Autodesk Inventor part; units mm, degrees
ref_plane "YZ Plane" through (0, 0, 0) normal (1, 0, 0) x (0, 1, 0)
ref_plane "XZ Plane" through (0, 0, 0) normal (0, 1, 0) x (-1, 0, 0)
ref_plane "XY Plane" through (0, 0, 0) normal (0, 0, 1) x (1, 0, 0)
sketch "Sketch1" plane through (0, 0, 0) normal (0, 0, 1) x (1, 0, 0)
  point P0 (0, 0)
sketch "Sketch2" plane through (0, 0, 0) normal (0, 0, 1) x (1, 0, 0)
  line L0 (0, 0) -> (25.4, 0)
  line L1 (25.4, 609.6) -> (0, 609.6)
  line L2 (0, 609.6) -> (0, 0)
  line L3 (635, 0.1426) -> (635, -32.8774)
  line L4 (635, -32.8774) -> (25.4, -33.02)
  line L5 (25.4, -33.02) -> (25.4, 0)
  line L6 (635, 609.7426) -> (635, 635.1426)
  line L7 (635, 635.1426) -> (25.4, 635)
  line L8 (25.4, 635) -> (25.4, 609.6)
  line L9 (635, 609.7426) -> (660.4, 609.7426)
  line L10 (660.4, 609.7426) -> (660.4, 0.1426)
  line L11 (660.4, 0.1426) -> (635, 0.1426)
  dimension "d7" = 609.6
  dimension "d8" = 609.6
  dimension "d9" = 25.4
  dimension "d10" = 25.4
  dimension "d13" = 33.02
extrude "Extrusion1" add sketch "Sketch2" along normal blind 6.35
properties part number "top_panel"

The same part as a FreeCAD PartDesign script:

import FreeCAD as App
import Part
import Sketcher

V = App.Vector
Q = App.Units.Quantity

doc = App.newDocument("Part")
params = doc.addObject("Spreadsheet::Sheet", "Params")
for row, (alias, value) in enumerate([
    ("sketch1_width", "1 in"),
    ("sketch1_height", "24 in"),
    ("sketch1_length", "24 in"),
    ("sketch1_height2", "1.3 in"),
    ("pad1_length", "0.25 in"),
], start=1):
    params.set(f"A{row}", alias)
    params.set(f"B{row}", "=" + value)
    params.setAlias(f"B{row}", alias)

body = doc.addObject("PartDesign::Body", "Body")

sketch1 = doc.addObject("Sketcher::SketchObject", "Sketch")
body.addObject(sketch1)
sketch1.AttachmentSupport = (doc.XY_Plane, [""])
sketch1.MapMode = "FlatFace"
sketch1.addGeometry(Part.LineSegment(V(0, 610, 0), V(0, 0, 0)), False)
sketch1.addGeometry(Part.LineSegment(V(0, 0, 0), V(25, 0, 0)), False)
sketch1.addGeometry(Part.LineSegment(V(25, 0, 0), V(25, -33, 0)), False)
sketch1.addGeometry(Part.LineSegment(V(25, -33, 0), V(635, -33, 0)), False)
sketch1.addGeometry(Part.LineSegment(V(635, -33, 0), V(635, 0, 0)), False)
sketch1.addGeometry(Part.LineSegment(V(635, 0, 0), V(660, 0, 0)), False)
sketch1.addGeometry(Part.LineSegment(V(660, 0, 0), V(660, 610, 0)), False)
sketch1.addGeometry(Part.LineSegment(V(660, 610, 0), V(635, 610, 0)), False)
sketch1.addGeometry(Part.LineSegment(V(635, 610, 0), V(635, 635, 0)), False)
sketch1.addGeometry(Part.LineSegment(V(635, 635, 0), V(25, 635, 0)), False)
sketch1.addGeometry(Part.LineSegment(V(25, 635, 0), V(25, 610, 0)), False)
sketch1.addGeometry(Part.LineSegment(V(25, 610, 0), V(0, 610, 0)), False)
sketch1.addConstraint(Sketcher.Constraint("Coincident", 0, 2, 1, 1))
sketch1.addConstraint(Sketcher.Constraint("Coincident", 1, 2, 2, 1))
sketch1.addConstraint(Sketcher.Constraint("Coincident", 2, 2, 3, 1))
sketch1.addConstraint(Sketcher.Constraint("Coincident", 3, 2, 4, 1))
sketch1.addConstraint(Sketcher.Constraint("Coincident", 4, 2, 5, 1))
sketch1.addConstraint(Sketcher.Constraint("Coincident", 5, 2, 6, 1))
sketch1.addConstraint(Sketcher.Constraint("Coincident", 6, 2, 7, 1))
sketch1.addConstraint(Sketcher.Constraint("Coincident", 7, 2, 8, 1))
sketch1.addConstraint(Sketcher.Constraint("Coincident", 8, 2, 9, 1))
sketch1.addConstraint(Sketcher.Constraint("Coincident", 9, 2, 10, 1))
sketch1.addConstraint(Sketcher.Constraint("Coincident", 10, 2, 11, 1))
sketch1.addConstraint(Sketcher.Constraint("Coincident", 11, 2, 0, 1))
sketch1.addConstraint(Sketcher.Constraint("Vertical", 0))
sketch1.addConstraint(Sketcher.Constraint("Horizontal", 1))
sketch1.addConstraint(Sketcher.Constraint("Vertical", 2))
sketch1.addConstraint(Sketcher.Constraint("Vertical", 4))
sketch1.addConstraint(Sketcher.Constraint("Horizontal", 5))
sketch1.addConstraint(Sketcher.Constraint("Vertical", 6))
sketch1.addConstraint(Sketcher.Constraint("Horizontal", 7))
sketch1.addConstraint(Sketcher.Constraint("Vertical", 8))
sketch1.addConstraint(Sketcher.Constraint("Vertical", 10))
sketch1.addConstraint(Sketcher.Constraint("Horizontal", 11))
sketch1.addConstraint(Sketcher.Constraint("Coincident", 0, 2, -1, 1))
sketch1.addConstraint(Sketcher.Constraint("Parallel", 3, 9))
sketch1.addConstraint(Sketcher.Constraint("Vertical", 4, 2, 7, 2))
sketch1.addConstraint(Sketcher.Constraint("Vertical", 2, 2, 9, 2))
sketch1.addConstraint(Sketcher.Constraint("Equal", 1, 5))
sketch1.addConstraint(Sketcher.Constraint("Equal", 2, 4))
sketch1.addConstraint(Sketcher.Constraint("Equal", 0, 6))
sketch1.addConstraint(Sketcher.Constraint("Equal", 11, 8))
sketch1.addConstraint(Sketcher.Constraint("DistanceX", 1, 1, 1, 2, Q("1 in")))
sketch1.addConstraint(Sketcher.Constraint("DistanceY", 0, 2, 0, 1, Q("24 in")))
sketch1.addConstraint(Sketcher.Constraint("Distance", 3, Q("24 in")))
sketch1.addConstraint(Sketcher.Constraint("DistanceY", 2, 2, 2, 1, Q("1.3 in")))
sketch1.addConstraint(Sketcher.Constraint("DistanceY", 3, 2, -1, 1, 32.8774))
sketch1.setExpression("Constraints[30]", "Params.sketch1_width")
sketch1.setExpression("Constraints[31]", "Params.sketch1_height")
sketch1.setExpression("Constraints[32]", "Params.sketch1_length")
sketch1.setExpression("Constraints[33]", "Params.sketch1_height2")
pad1 = doc.addObject("PartDesign::Pad", "Pad")
body.addObject(pad1)
pad1.Profile = sketch1
pad1.setExpression("Length", "Params.pad1_length")

doc.recompute()
